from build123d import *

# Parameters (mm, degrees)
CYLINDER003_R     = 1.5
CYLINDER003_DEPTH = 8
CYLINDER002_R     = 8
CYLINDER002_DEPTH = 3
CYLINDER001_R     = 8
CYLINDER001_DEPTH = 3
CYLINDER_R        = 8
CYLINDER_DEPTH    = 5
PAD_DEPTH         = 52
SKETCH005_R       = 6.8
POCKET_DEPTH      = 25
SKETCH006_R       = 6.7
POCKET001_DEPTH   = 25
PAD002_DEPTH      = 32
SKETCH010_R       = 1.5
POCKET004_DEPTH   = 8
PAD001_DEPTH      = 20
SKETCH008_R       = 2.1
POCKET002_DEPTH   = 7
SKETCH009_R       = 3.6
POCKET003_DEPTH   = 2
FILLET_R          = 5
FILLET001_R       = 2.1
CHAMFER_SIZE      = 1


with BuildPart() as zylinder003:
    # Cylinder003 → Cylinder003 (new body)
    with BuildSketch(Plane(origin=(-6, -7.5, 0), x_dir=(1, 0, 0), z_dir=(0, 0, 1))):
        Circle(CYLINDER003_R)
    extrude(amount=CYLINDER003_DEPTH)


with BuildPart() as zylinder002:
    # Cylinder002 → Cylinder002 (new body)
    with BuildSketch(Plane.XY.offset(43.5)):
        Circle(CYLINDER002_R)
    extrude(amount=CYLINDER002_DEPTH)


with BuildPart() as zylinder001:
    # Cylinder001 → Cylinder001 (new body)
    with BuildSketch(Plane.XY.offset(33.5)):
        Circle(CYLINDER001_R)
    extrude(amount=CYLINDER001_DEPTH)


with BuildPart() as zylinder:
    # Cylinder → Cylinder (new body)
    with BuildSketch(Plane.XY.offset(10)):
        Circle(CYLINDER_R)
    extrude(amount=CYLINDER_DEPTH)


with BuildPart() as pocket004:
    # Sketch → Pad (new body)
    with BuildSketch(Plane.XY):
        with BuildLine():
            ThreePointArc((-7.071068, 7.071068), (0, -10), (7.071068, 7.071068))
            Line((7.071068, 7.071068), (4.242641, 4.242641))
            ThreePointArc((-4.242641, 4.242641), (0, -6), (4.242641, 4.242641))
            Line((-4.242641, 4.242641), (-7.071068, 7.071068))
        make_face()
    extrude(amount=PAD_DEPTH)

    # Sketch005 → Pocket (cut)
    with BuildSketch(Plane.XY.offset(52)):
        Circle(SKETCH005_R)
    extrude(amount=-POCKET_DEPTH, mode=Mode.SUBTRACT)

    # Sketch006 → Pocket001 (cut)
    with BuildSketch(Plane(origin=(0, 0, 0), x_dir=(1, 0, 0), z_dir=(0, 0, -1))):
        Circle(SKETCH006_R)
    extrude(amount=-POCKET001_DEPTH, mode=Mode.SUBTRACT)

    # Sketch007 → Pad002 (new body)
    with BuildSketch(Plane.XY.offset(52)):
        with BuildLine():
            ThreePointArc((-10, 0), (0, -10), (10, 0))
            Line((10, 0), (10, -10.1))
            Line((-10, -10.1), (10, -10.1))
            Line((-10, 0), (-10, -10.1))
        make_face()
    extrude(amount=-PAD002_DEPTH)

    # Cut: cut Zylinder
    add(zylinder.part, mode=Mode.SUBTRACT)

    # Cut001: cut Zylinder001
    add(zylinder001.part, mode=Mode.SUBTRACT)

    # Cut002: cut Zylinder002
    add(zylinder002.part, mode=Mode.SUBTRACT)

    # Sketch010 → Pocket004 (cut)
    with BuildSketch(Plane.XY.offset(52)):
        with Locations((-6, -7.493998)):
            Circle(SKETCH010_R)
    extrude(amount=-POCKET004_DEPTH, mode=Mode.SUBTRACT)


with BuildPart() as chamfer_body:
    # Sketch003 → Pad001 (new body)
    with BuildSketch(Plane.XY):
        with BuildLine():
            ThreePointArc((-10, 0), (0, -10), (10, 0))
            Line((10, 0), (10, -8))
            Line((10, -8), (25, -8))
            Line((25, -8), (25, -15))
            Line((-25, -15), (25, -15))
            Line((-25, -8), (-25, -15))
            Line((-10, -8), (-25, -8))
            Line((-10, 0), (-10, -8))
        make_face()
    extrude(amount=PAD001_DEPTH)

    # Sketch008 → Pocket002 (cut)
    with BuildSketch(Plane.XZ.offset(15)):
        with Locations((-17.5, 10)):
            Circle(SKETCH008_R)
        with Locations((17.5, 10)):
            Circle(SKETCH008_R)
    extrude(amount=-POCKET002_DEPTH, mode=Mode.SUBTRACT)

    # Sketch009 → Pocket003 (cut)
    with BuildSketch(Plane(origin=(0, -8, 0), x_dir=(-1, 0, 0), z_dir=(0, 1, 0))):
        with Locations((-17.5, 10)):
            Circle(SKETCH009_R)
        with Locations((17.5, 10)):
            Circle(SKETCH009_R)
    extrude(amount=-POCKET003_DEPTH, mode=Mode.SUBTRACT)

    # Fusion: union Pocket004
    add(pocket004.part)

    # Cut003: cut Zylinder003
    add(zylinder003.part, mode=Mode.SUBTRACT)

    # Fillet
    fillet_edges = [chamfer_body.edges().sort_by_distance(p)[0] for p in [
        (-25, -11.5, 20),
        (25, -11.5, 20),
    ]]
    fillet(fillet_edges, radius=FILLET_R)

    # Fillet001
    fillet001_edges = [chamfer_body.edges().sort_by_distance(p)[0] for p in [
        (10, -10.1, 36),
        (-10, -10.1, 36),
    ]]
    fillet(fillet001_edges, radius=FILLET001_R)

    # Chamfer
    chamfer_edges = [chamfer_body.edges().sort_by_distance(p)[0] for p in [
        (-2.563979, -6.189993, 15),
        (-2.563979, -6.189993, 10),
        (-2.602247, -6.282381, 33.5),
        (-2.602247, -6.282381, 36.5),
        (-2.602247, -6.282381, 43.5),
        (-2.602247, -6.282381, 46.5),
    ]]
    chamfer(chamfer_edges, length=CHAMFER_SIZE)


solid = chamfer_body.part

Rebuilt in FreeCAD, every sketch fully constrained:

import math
import FreeCAD as App
import Part
import Sketcher
from FreeCAD import Vector


def edges_at(feature, points):
    """Names of the edges that pass closest to the given points."""
    edges = feature.Shape.Edges
    near = lambda p: min(range(len(edges)), key=lambda i: edges[i].distToShape(Part.Vertex(*p))[0])
    return sorted({f"Edge{near(p) + 1}" for p in points})

doc = App.newDocument("Part")
body = doc.addObject("PartDesign::Body", "Body")

sketch1 = doc.addObject("Sketcher::SketchObject", "Sketch")
body.addObject(sketch1)
sketch1.AttachmentSupport = (doc.XY_Plane, [""])
sketch1.MapMode = "FlatFace"
sketch1.addGeometry(Part.Circle(Vector(-6, -7.5, 0), Vector(0, 0, 1), 1.5), False)
sketch1.addConstraint([
    Sketcher.Constraint("Diameter", 0, 3.0),
    Sketcher.Constraint("DistanceX", 0, 3, -1, 1, 6.0),
    Sketcher.Constraint("DistanceY", 0, 3, -1, 1, 7.5),
])
pad1 = doc.addObject("PartDesign::Pad", "Pad")
body.addObject(pad1)
pad1.Profile = sketch1
pad1.Length = 8
body2 = doc.addObject("PartDesign::Body", "Body001")

sketch2 = doc.addObject("Sketcher::SketchObject", "Sketch001")
body2.addObject(sketch2)
sketch2.AttachmentSupport = (doc.getObject("XY_Plane001"), [""])
sketch2.MapMode = "FlatFace"
sketch2.AttachmentOffset = App.Placement(Vector(0, 0, 43.5), App.Rotation())
sketch2.addGeometry(Part.Circle(Vector(0, 0, 0), Vector(0, 0, 1), 8), False)
sketch2.addConstraint([
    Sketcher.Constraint("Coincident", 0, 3, -1, 1),
    Sketcher.Constraint("Diameter", 0, 16.0),
])
pad2 = doc.addObject("PartDesign::Pad", "Pad001")
body2.addObject(pad2)
pad2.Profile = sketch2
pad2.Length = 3
body3 = doc.addObject("PartDesign::Body", "Body002")

sketch3 = doc.addObject("Sketcher::SketchObject", "Sketch002")
body3.addObject(sketch3)
sketch3.AttachmentSupport = (doc.getObject("XY_Plane002"), [""])
sketch3.MapMode = "FlatFace"
sketch3.AttachmentOffset = App.Placement(Vector(0, 0, 33.5), App.Rotation())
sketch3.addGeometry(Part.Circle(Vector(0, 0, 0), Vector(0, 0, 1), 8), False)
sketch3.addConstraint([
    Sketcher.Constraint("Coincident", 0, 3, -1, 1),
    Sketcher.Constraint("Diameter", 0, 16.0),
])
pad3 = doc.addObject("PartDesign::Pad", "Pad002")
body3.addObject(pad3)
pad3.Profile = sketch3
pad3.Length = 3
body4 = doc.addObject("PartDesign::Body", "Body003")

sketch4 = doc.addObject("Sketcher::SketchObject", "Sketch003")
body4.addObject(sketch4)
sketch4.AttachmentSupport = (doc.getObject("XY_Plane003"), [""])
sketch4.MapMode = "FlatFace"
sketch4.AttachmentOffset = App.Placement(Vector(0, 0, 10), App.Rotation())
sketch4.addGeometry(Part.Circle(Vector(0, 0, 0), Vector(0, 0, 1), 8), False)
sketch4.addConstraint([
    Sketcher.Constraint("Coincident", 0, 3, -1, 1),
    Sketcher.Constraint("Diameter", 0, 16.0),
])
pad4 = doc.addObject("PartDesign::Pad", "Pad003")
body4.addObject(pad4)
pad4.Profile = sketch4
pad4.Length = 5
body5 = doc.addObject("PartDesign::Body", "Body004")

sketch5 = doc.addObject("Sketcher::SketchObject", "Sketch004")
body5.addObject(sketch5)
sketch5.AttachmentSupport = (doc.getObject("XY_Plane004"), [""])
sketch5.MapMode = "FlatFace"
sketch5.addGeometry([
    Part.ArcOfCircle(Part.Circle(Vector(0, 0, 0), Vector(0, 0, 1), 10), math.radians(135), math.radians(405)),
    Part.LineSegment(Vector(7.1, 7.1, 0), Vector(4.2, 4.2, 0)),
    Part.ArcOfCircle(Part.Circle(Vector(0, 0, 0), Vector(0, 0, 1), 6), math.radians(135), math.radians(405)),
    Part.LineSegment(Vector(-4.2, 4.2, 0), Vector(-7.1, 7.1, 0)),
], False)
sketch5.addConstraint([
    Sketcher.Constraint("Coincident", 0, 2, 1, 1),
    Sketcher.Constraint("Coincident", 1, 2, 2, 2),
    Sketcher.Constraint("Coincident", 2, 1, 3, 1),
    Sketcher.Constraint("Coincident", 3, 2, 0, 1),
    Sketcher.Constraint("Coincident", 0, 3, -1, 1),
    Sketcher.Constraint("Coincident", 2, 3, -1, 1),
    Sketcher.Constraint("Perpendicular", 1, 3),
    Sketcher.Constraint("Horizontal", 1, 2, 2, 1),
    Sketcher.Constraint("Horizontal", 0, 2, 3, 2),
    Sketcher.Constraint("Radius", 0, 10.0),
    Sketcher.Constraint("Radius", 2, 6.0),
    Sketcher.Constraint("DistanceX", -1, 1, 0, 2, 7.071068),
])
pad5 = doc.addObject("PartDesign::Pad", "Pad004")
body5.addObject(pad5)
pad5.Profile = sketch5
pad5.Length = 52

sketch6 = doc.addObject("Sketcher::SketchObject", "Sketch005")
body5.addObject(sketch6)
sketch6.AttachmentSupport = (doc.getObject("XY_Plane004"), [""])
sketch6.MapMode = "FlatFace"
sketch6.AttachmentOffset = App.Placement(Vector(0, 0, 52), App.Rotation())
sketch6.addGeometry(Part.Circle(Vector(0, 0, 0), Vector(0, 0, 1), 7), False)
sketch6.addConstraint([
    Sketcher.Constraint("Coincident", 0, 3, -1, 1),
    Sketcher.Constraint("Diameter", 0, 13.6),
])
pocket1 = doc.addObject("PartDesign::Pocket", "Pocket")
body5.addObject(pocket1)
pocket1.Profile = sketch6
pocket1.Length = 25

sketch7 = doc.addObject("Sketcher::SketchObject", "Sketch006")
body5.addObject(sketch7)
sketch7.AttachmentSupport = (doc.getObject("XY_Plane004"), [""])
sketch7.MapMode = "FlatFace"
sketch7.addGeometry(Part.Circle(Vector(0, 0, 0), Vector(0, 0, 1), 7), False)
sketch7.addConstraint([
    Sketcher.Constraint("Coincident", 0, 3, -1, 1),
    Sketcher.Constraint("Diameter", 0, 13.4),
])
pocket2 = doc.addObject("PartDesign::Pocket", "Pocket001")
body5.addObject(pocket2)
pocket2.Profile = sketch7
pocket2.Length = 25
pocket2.Reversed = True

sketch8 = doc.addObject("Sketcher::SketchObject", "Sketch007")
body5.addObject(sketch8)
sketch8.AttachmentSupport = (doc.getObject("XY_Plane004"), [""])
sketch8.MapMode = "FlatFace"
sketch8.AttachmentOffset = App.Placement(Vector(0, 0, 52), App.Rotation())
sketch8.addGeometry([
    Part.ArcOfCircle(Part.Circle(Vector(0, 0, 0), Vector(0, 0, 1), 10), math.radians(180), math.radians(360)),
    Part.LineSegment(Vector(-10, 0, 0), Vector(-10, -10, 0)),
    Part.LineSegment(Vector(-10, -10, 0), Vector(10, -10, 0)),
    Part.LineSegment(Vector(10, -10, 0), Vector(10, 0, 0)),
], False)
sketch8.addConstraint([
    Sketcher.Constraint("Tangent", 0, 1, 1, 1),
    Sketcher.Constraint("Coincident", 1, 2, 2, 1),
    Sketcher.Constraint("Coincident", 2, 2, 3, 1),
    Sketcher.Constraint("Tangent", 3, 2, 0, 2),
    Sketcher.Constraint("Vertical", 1),
    Sketcher.Constraint("Horizontal", 2),
    Sketcher.Constraint("Vertical", 3),
    Sketcher.Constraint("Coincident", 0, 3, -1, 1),
    Sketcher.Constraint("Radius", 0, 10.0),
    Sketcher.Constraint("DistanceY", 1, 2, 1, 1, 10.1),
])
pad6 = doc.addObject("PartDesign::Pad", "Pad005")
body5.addObject(pad6)
pad6.Profile = sketch8
pad6.Length = 32
pad6.Reversed = True
doc.recompute()

boolean = doc.addObject("PartDesign::Boolean", "Boolean")
body5.addObject(boolean)
boolean.Type = "Cut"
boolean.addObjects([body4])
doc.recompute()

boolean2 = doc.addObject("PartDesign::Boolean", "Boolean001")
body5.addObject(boolean2)
boolean2.Type = "Cut"
boolean2.addObjects([body3])
doc.recompute()

boolean3 = doc.addObject("PartDesign::Boolean", "Boolean002")
body5.addObject(boolean3)
boolean3.Type = "Cut"
boolean3.addObjects([body2])

sketch9 = doc.addObject("Sketcher::SketchObject", "Sketch008")
body5.addObject(sketch9)
sketch9.AttachmentSupport = (doc.getObject("XY_Plane004"), [""])
sketch9.MapMode = "FlatFace"
sketch9.AttachmentOffset = App.Placement(Vector(0, 0, 52), App.Rotation())
sketch9.addGeometry(Part.Circle(Vector(-6, -7.5, 0), Vector(0, 0, 1), 1.5), False)
sketch9.addConstraint([
    Sketcher.Constraint("Diameter", 0, 3.0),
    Sketcher.Constraint("DistanceX", 0, 3, -1, 1, 6.0),
    Sketcher.Constraint("DistanceY", 0, 3, -1, 1, 7.493998),
])
pocket3 = doc.addObject("PartDesign::Pocket", "Pocket002")
body5.addObject(pocket3)
pocket3.Profile = sketch9
pocket3.Length = 8
body6 = doc.addObject("PartDesign::Body", "Body005")

sketch10 = doc.addObject("Sketcher::SketchObject", "Sketch009")
body6.addObject(sketch10)
sketch10.AttachmentSupport = (doc.getObject("XY_Plane005"), [""])
sketch10.MapMode = "FlatFace"
sketch10.addGeometry([
    Part.ArcOfCircle(Part.Circle(Vector(0, 0, 0), Vector(0, 0, 1), 10), math.radians(180), math.radians(360)),
    Part.LineSegment(Vector(-10, 0, 0), Vector(-10, -8, 0)),
    Part.LineSegment(Vector(-10, -8, 0), Vector(-25, -8, 0)),
    Part.LineSegment(Vector(-25, -8, 0), Vector(-25, -15, 0)),
    Part.LineSegment(Vector(-25, -15, 0), Vector(25, -15, 0)),
    Part.LineSegment(Vector(25, -15, 0), Vector(25, -8, 0)),
    Part.LineSegment(Vector(25, -8, 0), Vector(10, -8, 0)),
    Part.LineSegment(Vector(10, -8, 0), Vector(10, 0, 0)),
], False)
sketch10.addConstraint([
    Sketcher.Constraint("Tangent", 0, 1, 1, 1),
    Sketcher.Constraint("Coincident", 1, 2, 2, 1),
    Sketcher.Constraint("Coincident", 2, 2, 3, 1),
    Sketcher.Constraint("Coincident", 3, 2, 4, 1),
    Sketcher.Constraint("Coincident", 4, 2, 5, 1),
    Sketcher.Constraint("Coincident", 5, 2, 6, 1),
    Sketcher.Constraint("Coincident", 6, 2, 7, 1),
    Sketcher.Constraint("Tangent", 7, 2, 0, 2),
    Sketcher.Constraint("Vertical", 1),
    Sketcher.Constraint("Horizontal", 2),
    Sketcher.Constraint("Vertical", 3),
    Sketcher.Constraint("Horizontal", 4),
    Sketcher.Constraint("Vertical", 5),
    Sketcher.Constraint("Horizontal", 6),
    Sketcher.Constraint("Vertical", 7),
    Sketcher.Constraint("Coincident", 0, 3, -1, 1),
    Sketcher.Constraint("Symmetric", 2, 2, 5, 2, -2),
    Sketcher.Constraint("Radius", 0, 10.0),
    Sketcher.Constraint("DistanceX", 2, 2, 2, 1, 15.0),
    Sketcher.Constraint("DistanceY", 1, 2, 1, 1, 8.0),
    Sketcher.Constraint("DistanceY", 3, 2, 3, 1, 7.0),
])
pad7 = doc.addObject("PartDesign::Pad", "Pad006")
body6.addObject(pad7)
pad7.Profile = sketch10
pad7.Length = 20

sketch11 = doc.addObject("Sketcher::SketchObject", "Sketch010")
body6.addObject(sketch11)
sketch11.AttachmentSupport = (doc.getObject("XZ_Plane005"), [""])
sketch11.MapMode = "FlatFace"
sketch11.AttachmentOffset = App.Placement(Vector(0, 0, 15), App.Rotation())
sketch11.addGeometry([
    Part.Circle(Vector(-17.5, 10, 0), Vector(0, 0, 1), 2.1),
    Part.Circle(Vector(17.5, 10, 0), Vector(0, 0, 1), 2.1),
], False)
sketch11.addConstraint([
    Sketcher.Constraint("Equal", 0, 1),
    Sketcher.Constraint("Symmetric", 0, 3, 1, 3, -2),
    Sketcher.Constraint("Diameter", 0, 4.2),
    Sketcher.Constraint("DistanceY", -1, 1, 0, 3, 10.0),
    Sketcher.Constraint("DistanceX", 0, 3, 1, 3, 35.0),
])
pocket4 = doc.addObject("PartDesign::Pocket", "Pocket003")
body6.addObject(pocket4)
pocket4.Profile = sketch11
pocket4.Length = 7

sketch12 = doc.addObject("Sketcher::SketchObject", "Sketch011")
body6.addObject(sketch12)
sketch12.AttachmentSupport = (doc.getObject("XZ_Plane005"), [""])
sketch12.MapMode = "FlatFace"
sketch12.AttachmentOffset = App.Placement(Vector(0, 0, 8), App.Rotation())
sketch12.addGeometry([
    Part.Circle(Vector(17.5, 10, 0), Vector(0, 0, 1), 3.6),
    Part.Circle(Vector(-17.5, 10, 0), Vector(0, 0, 1), 3.6),
], False)
sketch12.addConstraint([
    Sketcher.Constraint("Equal", 0, 1),
    Sketcher.Constraint("Symmetric", 0, 3, 1, 3, -2),
    Sketcher.Constraint("Diameter", 0, 7.2),
    Sketcher.Constraint("DistanceY", -1, 1, 0, 3, 10.0),
    Sketcher.Constraint("DistanceX", 1, 3, 0, 3, 35.0),
])
pocket5 = doc.addObject("PartDesign::Pocket", "Pocket004")
body6.addObject(pocket5)
pocket5.Profile = sketch12
pocket5.Length = 2
pocket5.Reversed = True
doc.recompute()

boolean4 = doc.addObject("PartDesign::Boolean", "Boolean003")
body6.addObject(boolean4)
boolean4.Type = "Fuse"
boolean4.addObjects([body5])
doc.recompute()

boolean5 = doc.addObject("PartDesign::Boolean", "Boolean004")
body6.addObject(boolean5)
boolean5.Type = "Cut"
boolean5.addObjects([body])
doc.recompute()

fillet = doc.addObject("PartDesign::Fillet", "Fillet")
body6.addObject(fillet)
fillet.Base = (boolean5, edges_at(boolean5, [(-25, -11.5, 20), (25, -11.5, 20)]))
fillet.Radius = 5
doc.recompute()

fillet2 = doc.addObject("PartDesign::Fillet", "Fillet001")
body6.addObject(fillet2)
fillet2.Base = (fillet, edges_at(fillet, [(10, -10.1, 36), (-10, -10.1, 36)]))
fillet2.Radius = 2.1
doc.recompute()

chamfer = doc.addObject("PartDesign::Chamfer", "Chamfer")
body6.addObject(chamfer)
chamfer.Base = (fillet2, edges_at(fillet2, [
    (0, -6.7, 15),
    (0, -6.7, 10),
    (0, -6.8, 33.5),
    (0, -6.8, 36.5),
    (0, -6.8, 43.5),
    (0, -6.8, 46.5),
]))
chamfer.Size = 1

doc.recompute()
